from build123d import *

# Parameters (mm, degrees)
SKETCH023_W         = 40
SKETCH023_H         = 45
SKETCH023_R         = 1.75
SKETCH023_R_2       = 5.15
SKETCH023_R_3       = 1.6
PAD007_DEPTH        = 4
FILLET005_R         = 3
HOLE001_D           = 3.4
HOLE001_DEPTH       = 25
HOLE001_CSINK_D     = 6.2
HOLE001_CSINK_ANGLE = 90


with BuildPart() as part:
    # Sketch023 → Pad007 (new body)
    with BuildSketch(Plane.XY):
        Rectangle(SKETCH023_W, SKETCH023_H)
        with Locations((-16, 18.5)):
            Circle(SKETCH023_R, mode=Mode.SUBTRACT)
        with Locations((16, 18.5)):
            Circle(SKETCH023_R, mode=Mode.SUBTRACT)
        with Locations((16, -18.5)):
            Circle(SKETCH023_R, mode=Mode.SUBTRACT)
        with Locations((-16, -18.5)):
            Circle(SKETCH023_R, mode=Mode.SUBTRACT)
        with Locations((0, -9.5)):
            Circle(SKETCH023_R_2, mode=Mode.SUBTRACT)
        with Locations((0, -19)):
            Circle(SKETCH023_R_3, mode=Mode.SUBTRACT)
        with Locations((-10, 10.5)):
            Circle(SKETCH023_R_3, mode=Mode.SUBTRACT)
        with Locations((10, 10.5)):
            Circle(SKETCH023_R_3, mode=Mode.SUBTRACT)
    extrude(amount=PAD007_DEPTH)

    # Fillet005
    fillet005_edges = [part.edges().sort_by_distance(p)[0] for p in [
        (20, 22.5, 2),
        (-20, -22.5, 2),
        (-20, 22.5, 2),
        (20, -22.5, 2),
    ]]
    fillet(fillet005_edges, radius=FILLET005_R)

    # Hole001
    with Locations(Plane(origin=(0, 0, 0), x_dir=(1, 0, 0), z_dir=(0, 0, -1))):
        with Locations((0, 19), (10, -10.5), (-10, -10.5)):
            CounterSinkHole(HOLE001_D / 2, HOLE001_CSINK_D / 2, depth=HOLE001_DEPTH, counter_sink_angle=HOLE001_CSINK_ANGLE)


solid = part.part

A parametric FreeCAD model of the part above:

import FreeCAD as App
import Part
import Sketcher
from FreeCAD import Vector
Q = App.Units.Quantity


def edges_at(feature, points):
    """Names of the edges that pass closest to the given points."""
    edges = feature.Shape.Edges
    near = lambda p: min(range(len(edges)), key=lambda i: edges[i].distToShape(Part.Vertex(*p))[0])
    return sorted({f"Edge{near(p) + 1}" for p in points})


def add_polygon(sketch, points):
    """Adds a closed chain of lines whose ends are joined by coincident constraints."""
    first, n = sketch.GeometryCount, len(points)
    for a, b in zip(points, points[1:] + points[:1]):
        sketch.addGeometry(Part.LineSegment(App.Vector(*a, 0), App.Vector(*b, 0)), False)
    for i in range(n):
        sketch.addConstraint(Sketcher.Constraint("Coincident", first + i, 2, first + (i + 1) % n, 1))

doc = App.newDocument("Part")
params = doc.addObject("Spreadsheet::Sheet", "Params")
for row, (alias, value) in enumerate([
    ("sketch1_diameter", "3.5 mm"),
    ("sketch1_diameter2", "3.2 mm"),
    ("sketch1_diameter3", "10.3 mm"),
    ("sketch1_width", "40 mm"),
    ("sketch1_height", "45 mm"),
    ("pad1_length", "4 mm"),
    ("fillet_radius", "3 mm"),
    ("sketch2_diameter", "3.4 mm"),
    ("hole_diameter", "3.4 mm"),
    ("hole_depth", "25 mm"),
    ("hole_csink_diameter", "6.2 mm"),
], start=1):
    params.set(f"A{row}", alias)
    params.set(f"B{row}", "=" + value)
    params.setAlias(f"B{row}", alias)

body = doc.addObject("PartDesign::Body", "Body")

# Sketch on XY plane
sketch1 = body.newObject("Sketcher::SketchObject", "Sketch")
sketch1.AttachmentSupport = (doc.getObject("XY_Plane"), [""])
sketch1.MapMode = "FlatFace"
add_polygon(sketch1, [(-20, 22.5), (-20, -22.5), (20, -22.5), (20, 22.5)])  # lines 0-3
sketch1.addGeometry(Part.Circle(Vector(-16, -18.5, 0), Vector(0, 0, 1), 1.75), False)  # 4
sketch1.addGeometry(Part.Circle(Vector(0, -19, 0), Vector(0, 0, 1), 1.6), False)  # 5
sketch1.addGeometry(Part.Circle(Vector(16, -18.5, 0), Vector(0, 0, 1), 1.75), False)  # 6
sketch1.addGeometry(Part.Circle(Vector(0, -9.5, 0), Vector(0, 0, 1), 5.15), False)  # 7
sketch1.addGeometry(Part.Circle(Vector(-10, 10.5, 0), Vector(0, 0, 1), 1.6), False)  # 8
sketch1.addGeometry(Part.Circle(Vector(-16, 18.5, 0), Vector(0, 0, 1), 1.75), False)  # 9
sketch1.addGeometry(Part.Circle(Vector(10, 10.5, 0), Vector(0, 0, 1), 1.6), False)  # 10
sketch1.addGeometry(Part.Circle(Vector(16, 18.5, 0), Vector(0, 0, 1), 1.75), False)  # 11
sketch1.addConstraint([
    Sketcher.Constraint("Vertical", 0),
    Sketcher.Constraint("Horizontal", 1),
    Sketcher.Constraint("Vertical", 2),
    Sketcher.Constraint("Horizontal", 3),
    Sketcher.Constraint("Equal", 4, 6),
    Sketcher.Constraint("Equal", 5, 8),
    Sketcher.Constraint("Equal", 6, 9),
    Sketcher.Constraint("Equal", 8, 10),
    Sketcher.Constraint("Equal", 9, 11),
    Sketcher.Constraint("Symmetric", 6, 3, 9, 3, -1, 1),
    Sketcher.Constraint("Symmetric", 4, 3, 11, 3, -1, 1),
    Sketcher.Constraint("Symmetric", 0, 2, 2, 2, -1, 1),
    Sketcher.Constraint("Symmetric", 4, 3, 6, 3, -2),
    Sketcher.Constraint("Symmetric", 8, 3, 10, 3, -2),
    Sketcher.Constraint("PointOnObject", 5, 3, -2),
    Sketcher.Constraint("PointOnObject", 7, 3, -2),
    Sketcher.Constraint("Diameter", 4, Q("3.5 mm")),
    Sketcher.Constraint("Diameter", 5, Q("3.2 mm")),
    Sketcher.Constraint("Diameter", 7, Q("10.3 mm")),
    Sketcher.Constraint("DistanceX", 1, 1, 1, 2, Q("40 mm")),
    Sketcher.Constraint("DistanceY", 0, 2, 0, 1, Q("45 mm")),
    Sketcher.Constraint("DistanceX", 4, 3, -1, 1, Q("16 mm")),
    Sketcher.Constraint("DistanceY", 5, 3, -1, 1, Q("19 mm")),
    Sketcher.Constraint("DistanceX", 8, 3, -1, 1, Q("10 mm")),
    Sketcher.Constraint("DistanceY", 4, 3, 7, 3, Q("9 mm")),
    Sketcher.Constraint("DistanceY", 7, 3, 8, 3, Q("20 mm")),
    Sketcher.Constraint("DistanceY", 8, 3, 9, 3, Q("8 mm")),
])
sketch1.setExpression("Constraints[20]", "Params.sketch1_diameter")
sketch1.setExpression("Constraints[21]", "Params.sketch1_diameter2")
sketch1.setExpression("Constraints[22]", "Params.sketch1_diameter3")
sketch1.setExpression("Constraints[23]", "Params.sketch1_width")
sketch1.setExpression("Constraints[24]", "Params.sketch1_height")
pad1 = body.newObject("PartDesign::Pad", "Pad")
pad1.Profile = sketch1
pad1.setExpression("Length", "Params.pad1_length")
doc.recompute()

fillet = body.newObject("PartDesign::Fillet", "Fillet")
fillet.Base = (pad1, edges_at(pad1, [
    (20, 22.5, 2),
    (-20, -22.5, 2),
    (-20, 22.5, 2),
    (20, -22.5, 2),
]))
fillet.setExpression("Radius", "Params.fillet_radius")

# Sketch on XY plane
sketch2 = body.newObject("Sketcher::SketchObject", "Sketch001")
sketch2.AttachmentSupport = (doc.getObject("XY_Plane"), [""])
sketch2.MapMode = "FlatFace"
sketch2.addGeometry([
    Part.Circle(Vector(0, -19, 0), Vector(0, 0, 1), 1.7),
    Part.Circle(Vector(10, 10.5, 0), Vector(0, 0, 1), 1.7),
    Part.Circle(Vector(-10, 10.5, 0), Vector(0, 0, 1), 1.7),
], False)
sketch2.addConstraint([
    Sketcher.Constraint("Equal", 0, 1),
    Sketcher.Constraint("Equal", 1, 2),
    Sketcher.Constraint("Symmetric", 1, 3, 2, 3, -2),
    Sketcher.Constraint("PointOnObject", 0, 3, -2),
    Sketcher.Constraint("Diameter", 0, Q("3.4 mm")),
    Sketcher.Constraint("DistanceY", 0, 3, -1, 1, Q("19 mm")),
    Sketcher.Constraint("DistanceX", -1, 1, 1, 3, Q("10 mm")),
    Sketcher.Constraint("DistanceY", -1, 1, 1, 3, Q("10.5 mm")),
])
sketch2.setExpression("Constraints[4]", "Params.sketch2_diameter")
doc.recompute()
hole = body.newObject("PartDesign::Hole", "Hole")
hole.Profile = sketch2
hole.ThreadType = "None"
hole.setExpression("Diameter", "Params.hole_diameter")
hole.DepthType = "Dimension"
hole.setExpression("Depth", "Params.hole_depth")
hole.DrillPoint = "Flat"
hole.HoleCutType = "Countersink"
hole.setExpression("HoleCutDiameter", "Params.hole_csink_diameter")
hole.HoleCutCountersinkAngle = 90
hole.Reversed = True

doc.recompute()
